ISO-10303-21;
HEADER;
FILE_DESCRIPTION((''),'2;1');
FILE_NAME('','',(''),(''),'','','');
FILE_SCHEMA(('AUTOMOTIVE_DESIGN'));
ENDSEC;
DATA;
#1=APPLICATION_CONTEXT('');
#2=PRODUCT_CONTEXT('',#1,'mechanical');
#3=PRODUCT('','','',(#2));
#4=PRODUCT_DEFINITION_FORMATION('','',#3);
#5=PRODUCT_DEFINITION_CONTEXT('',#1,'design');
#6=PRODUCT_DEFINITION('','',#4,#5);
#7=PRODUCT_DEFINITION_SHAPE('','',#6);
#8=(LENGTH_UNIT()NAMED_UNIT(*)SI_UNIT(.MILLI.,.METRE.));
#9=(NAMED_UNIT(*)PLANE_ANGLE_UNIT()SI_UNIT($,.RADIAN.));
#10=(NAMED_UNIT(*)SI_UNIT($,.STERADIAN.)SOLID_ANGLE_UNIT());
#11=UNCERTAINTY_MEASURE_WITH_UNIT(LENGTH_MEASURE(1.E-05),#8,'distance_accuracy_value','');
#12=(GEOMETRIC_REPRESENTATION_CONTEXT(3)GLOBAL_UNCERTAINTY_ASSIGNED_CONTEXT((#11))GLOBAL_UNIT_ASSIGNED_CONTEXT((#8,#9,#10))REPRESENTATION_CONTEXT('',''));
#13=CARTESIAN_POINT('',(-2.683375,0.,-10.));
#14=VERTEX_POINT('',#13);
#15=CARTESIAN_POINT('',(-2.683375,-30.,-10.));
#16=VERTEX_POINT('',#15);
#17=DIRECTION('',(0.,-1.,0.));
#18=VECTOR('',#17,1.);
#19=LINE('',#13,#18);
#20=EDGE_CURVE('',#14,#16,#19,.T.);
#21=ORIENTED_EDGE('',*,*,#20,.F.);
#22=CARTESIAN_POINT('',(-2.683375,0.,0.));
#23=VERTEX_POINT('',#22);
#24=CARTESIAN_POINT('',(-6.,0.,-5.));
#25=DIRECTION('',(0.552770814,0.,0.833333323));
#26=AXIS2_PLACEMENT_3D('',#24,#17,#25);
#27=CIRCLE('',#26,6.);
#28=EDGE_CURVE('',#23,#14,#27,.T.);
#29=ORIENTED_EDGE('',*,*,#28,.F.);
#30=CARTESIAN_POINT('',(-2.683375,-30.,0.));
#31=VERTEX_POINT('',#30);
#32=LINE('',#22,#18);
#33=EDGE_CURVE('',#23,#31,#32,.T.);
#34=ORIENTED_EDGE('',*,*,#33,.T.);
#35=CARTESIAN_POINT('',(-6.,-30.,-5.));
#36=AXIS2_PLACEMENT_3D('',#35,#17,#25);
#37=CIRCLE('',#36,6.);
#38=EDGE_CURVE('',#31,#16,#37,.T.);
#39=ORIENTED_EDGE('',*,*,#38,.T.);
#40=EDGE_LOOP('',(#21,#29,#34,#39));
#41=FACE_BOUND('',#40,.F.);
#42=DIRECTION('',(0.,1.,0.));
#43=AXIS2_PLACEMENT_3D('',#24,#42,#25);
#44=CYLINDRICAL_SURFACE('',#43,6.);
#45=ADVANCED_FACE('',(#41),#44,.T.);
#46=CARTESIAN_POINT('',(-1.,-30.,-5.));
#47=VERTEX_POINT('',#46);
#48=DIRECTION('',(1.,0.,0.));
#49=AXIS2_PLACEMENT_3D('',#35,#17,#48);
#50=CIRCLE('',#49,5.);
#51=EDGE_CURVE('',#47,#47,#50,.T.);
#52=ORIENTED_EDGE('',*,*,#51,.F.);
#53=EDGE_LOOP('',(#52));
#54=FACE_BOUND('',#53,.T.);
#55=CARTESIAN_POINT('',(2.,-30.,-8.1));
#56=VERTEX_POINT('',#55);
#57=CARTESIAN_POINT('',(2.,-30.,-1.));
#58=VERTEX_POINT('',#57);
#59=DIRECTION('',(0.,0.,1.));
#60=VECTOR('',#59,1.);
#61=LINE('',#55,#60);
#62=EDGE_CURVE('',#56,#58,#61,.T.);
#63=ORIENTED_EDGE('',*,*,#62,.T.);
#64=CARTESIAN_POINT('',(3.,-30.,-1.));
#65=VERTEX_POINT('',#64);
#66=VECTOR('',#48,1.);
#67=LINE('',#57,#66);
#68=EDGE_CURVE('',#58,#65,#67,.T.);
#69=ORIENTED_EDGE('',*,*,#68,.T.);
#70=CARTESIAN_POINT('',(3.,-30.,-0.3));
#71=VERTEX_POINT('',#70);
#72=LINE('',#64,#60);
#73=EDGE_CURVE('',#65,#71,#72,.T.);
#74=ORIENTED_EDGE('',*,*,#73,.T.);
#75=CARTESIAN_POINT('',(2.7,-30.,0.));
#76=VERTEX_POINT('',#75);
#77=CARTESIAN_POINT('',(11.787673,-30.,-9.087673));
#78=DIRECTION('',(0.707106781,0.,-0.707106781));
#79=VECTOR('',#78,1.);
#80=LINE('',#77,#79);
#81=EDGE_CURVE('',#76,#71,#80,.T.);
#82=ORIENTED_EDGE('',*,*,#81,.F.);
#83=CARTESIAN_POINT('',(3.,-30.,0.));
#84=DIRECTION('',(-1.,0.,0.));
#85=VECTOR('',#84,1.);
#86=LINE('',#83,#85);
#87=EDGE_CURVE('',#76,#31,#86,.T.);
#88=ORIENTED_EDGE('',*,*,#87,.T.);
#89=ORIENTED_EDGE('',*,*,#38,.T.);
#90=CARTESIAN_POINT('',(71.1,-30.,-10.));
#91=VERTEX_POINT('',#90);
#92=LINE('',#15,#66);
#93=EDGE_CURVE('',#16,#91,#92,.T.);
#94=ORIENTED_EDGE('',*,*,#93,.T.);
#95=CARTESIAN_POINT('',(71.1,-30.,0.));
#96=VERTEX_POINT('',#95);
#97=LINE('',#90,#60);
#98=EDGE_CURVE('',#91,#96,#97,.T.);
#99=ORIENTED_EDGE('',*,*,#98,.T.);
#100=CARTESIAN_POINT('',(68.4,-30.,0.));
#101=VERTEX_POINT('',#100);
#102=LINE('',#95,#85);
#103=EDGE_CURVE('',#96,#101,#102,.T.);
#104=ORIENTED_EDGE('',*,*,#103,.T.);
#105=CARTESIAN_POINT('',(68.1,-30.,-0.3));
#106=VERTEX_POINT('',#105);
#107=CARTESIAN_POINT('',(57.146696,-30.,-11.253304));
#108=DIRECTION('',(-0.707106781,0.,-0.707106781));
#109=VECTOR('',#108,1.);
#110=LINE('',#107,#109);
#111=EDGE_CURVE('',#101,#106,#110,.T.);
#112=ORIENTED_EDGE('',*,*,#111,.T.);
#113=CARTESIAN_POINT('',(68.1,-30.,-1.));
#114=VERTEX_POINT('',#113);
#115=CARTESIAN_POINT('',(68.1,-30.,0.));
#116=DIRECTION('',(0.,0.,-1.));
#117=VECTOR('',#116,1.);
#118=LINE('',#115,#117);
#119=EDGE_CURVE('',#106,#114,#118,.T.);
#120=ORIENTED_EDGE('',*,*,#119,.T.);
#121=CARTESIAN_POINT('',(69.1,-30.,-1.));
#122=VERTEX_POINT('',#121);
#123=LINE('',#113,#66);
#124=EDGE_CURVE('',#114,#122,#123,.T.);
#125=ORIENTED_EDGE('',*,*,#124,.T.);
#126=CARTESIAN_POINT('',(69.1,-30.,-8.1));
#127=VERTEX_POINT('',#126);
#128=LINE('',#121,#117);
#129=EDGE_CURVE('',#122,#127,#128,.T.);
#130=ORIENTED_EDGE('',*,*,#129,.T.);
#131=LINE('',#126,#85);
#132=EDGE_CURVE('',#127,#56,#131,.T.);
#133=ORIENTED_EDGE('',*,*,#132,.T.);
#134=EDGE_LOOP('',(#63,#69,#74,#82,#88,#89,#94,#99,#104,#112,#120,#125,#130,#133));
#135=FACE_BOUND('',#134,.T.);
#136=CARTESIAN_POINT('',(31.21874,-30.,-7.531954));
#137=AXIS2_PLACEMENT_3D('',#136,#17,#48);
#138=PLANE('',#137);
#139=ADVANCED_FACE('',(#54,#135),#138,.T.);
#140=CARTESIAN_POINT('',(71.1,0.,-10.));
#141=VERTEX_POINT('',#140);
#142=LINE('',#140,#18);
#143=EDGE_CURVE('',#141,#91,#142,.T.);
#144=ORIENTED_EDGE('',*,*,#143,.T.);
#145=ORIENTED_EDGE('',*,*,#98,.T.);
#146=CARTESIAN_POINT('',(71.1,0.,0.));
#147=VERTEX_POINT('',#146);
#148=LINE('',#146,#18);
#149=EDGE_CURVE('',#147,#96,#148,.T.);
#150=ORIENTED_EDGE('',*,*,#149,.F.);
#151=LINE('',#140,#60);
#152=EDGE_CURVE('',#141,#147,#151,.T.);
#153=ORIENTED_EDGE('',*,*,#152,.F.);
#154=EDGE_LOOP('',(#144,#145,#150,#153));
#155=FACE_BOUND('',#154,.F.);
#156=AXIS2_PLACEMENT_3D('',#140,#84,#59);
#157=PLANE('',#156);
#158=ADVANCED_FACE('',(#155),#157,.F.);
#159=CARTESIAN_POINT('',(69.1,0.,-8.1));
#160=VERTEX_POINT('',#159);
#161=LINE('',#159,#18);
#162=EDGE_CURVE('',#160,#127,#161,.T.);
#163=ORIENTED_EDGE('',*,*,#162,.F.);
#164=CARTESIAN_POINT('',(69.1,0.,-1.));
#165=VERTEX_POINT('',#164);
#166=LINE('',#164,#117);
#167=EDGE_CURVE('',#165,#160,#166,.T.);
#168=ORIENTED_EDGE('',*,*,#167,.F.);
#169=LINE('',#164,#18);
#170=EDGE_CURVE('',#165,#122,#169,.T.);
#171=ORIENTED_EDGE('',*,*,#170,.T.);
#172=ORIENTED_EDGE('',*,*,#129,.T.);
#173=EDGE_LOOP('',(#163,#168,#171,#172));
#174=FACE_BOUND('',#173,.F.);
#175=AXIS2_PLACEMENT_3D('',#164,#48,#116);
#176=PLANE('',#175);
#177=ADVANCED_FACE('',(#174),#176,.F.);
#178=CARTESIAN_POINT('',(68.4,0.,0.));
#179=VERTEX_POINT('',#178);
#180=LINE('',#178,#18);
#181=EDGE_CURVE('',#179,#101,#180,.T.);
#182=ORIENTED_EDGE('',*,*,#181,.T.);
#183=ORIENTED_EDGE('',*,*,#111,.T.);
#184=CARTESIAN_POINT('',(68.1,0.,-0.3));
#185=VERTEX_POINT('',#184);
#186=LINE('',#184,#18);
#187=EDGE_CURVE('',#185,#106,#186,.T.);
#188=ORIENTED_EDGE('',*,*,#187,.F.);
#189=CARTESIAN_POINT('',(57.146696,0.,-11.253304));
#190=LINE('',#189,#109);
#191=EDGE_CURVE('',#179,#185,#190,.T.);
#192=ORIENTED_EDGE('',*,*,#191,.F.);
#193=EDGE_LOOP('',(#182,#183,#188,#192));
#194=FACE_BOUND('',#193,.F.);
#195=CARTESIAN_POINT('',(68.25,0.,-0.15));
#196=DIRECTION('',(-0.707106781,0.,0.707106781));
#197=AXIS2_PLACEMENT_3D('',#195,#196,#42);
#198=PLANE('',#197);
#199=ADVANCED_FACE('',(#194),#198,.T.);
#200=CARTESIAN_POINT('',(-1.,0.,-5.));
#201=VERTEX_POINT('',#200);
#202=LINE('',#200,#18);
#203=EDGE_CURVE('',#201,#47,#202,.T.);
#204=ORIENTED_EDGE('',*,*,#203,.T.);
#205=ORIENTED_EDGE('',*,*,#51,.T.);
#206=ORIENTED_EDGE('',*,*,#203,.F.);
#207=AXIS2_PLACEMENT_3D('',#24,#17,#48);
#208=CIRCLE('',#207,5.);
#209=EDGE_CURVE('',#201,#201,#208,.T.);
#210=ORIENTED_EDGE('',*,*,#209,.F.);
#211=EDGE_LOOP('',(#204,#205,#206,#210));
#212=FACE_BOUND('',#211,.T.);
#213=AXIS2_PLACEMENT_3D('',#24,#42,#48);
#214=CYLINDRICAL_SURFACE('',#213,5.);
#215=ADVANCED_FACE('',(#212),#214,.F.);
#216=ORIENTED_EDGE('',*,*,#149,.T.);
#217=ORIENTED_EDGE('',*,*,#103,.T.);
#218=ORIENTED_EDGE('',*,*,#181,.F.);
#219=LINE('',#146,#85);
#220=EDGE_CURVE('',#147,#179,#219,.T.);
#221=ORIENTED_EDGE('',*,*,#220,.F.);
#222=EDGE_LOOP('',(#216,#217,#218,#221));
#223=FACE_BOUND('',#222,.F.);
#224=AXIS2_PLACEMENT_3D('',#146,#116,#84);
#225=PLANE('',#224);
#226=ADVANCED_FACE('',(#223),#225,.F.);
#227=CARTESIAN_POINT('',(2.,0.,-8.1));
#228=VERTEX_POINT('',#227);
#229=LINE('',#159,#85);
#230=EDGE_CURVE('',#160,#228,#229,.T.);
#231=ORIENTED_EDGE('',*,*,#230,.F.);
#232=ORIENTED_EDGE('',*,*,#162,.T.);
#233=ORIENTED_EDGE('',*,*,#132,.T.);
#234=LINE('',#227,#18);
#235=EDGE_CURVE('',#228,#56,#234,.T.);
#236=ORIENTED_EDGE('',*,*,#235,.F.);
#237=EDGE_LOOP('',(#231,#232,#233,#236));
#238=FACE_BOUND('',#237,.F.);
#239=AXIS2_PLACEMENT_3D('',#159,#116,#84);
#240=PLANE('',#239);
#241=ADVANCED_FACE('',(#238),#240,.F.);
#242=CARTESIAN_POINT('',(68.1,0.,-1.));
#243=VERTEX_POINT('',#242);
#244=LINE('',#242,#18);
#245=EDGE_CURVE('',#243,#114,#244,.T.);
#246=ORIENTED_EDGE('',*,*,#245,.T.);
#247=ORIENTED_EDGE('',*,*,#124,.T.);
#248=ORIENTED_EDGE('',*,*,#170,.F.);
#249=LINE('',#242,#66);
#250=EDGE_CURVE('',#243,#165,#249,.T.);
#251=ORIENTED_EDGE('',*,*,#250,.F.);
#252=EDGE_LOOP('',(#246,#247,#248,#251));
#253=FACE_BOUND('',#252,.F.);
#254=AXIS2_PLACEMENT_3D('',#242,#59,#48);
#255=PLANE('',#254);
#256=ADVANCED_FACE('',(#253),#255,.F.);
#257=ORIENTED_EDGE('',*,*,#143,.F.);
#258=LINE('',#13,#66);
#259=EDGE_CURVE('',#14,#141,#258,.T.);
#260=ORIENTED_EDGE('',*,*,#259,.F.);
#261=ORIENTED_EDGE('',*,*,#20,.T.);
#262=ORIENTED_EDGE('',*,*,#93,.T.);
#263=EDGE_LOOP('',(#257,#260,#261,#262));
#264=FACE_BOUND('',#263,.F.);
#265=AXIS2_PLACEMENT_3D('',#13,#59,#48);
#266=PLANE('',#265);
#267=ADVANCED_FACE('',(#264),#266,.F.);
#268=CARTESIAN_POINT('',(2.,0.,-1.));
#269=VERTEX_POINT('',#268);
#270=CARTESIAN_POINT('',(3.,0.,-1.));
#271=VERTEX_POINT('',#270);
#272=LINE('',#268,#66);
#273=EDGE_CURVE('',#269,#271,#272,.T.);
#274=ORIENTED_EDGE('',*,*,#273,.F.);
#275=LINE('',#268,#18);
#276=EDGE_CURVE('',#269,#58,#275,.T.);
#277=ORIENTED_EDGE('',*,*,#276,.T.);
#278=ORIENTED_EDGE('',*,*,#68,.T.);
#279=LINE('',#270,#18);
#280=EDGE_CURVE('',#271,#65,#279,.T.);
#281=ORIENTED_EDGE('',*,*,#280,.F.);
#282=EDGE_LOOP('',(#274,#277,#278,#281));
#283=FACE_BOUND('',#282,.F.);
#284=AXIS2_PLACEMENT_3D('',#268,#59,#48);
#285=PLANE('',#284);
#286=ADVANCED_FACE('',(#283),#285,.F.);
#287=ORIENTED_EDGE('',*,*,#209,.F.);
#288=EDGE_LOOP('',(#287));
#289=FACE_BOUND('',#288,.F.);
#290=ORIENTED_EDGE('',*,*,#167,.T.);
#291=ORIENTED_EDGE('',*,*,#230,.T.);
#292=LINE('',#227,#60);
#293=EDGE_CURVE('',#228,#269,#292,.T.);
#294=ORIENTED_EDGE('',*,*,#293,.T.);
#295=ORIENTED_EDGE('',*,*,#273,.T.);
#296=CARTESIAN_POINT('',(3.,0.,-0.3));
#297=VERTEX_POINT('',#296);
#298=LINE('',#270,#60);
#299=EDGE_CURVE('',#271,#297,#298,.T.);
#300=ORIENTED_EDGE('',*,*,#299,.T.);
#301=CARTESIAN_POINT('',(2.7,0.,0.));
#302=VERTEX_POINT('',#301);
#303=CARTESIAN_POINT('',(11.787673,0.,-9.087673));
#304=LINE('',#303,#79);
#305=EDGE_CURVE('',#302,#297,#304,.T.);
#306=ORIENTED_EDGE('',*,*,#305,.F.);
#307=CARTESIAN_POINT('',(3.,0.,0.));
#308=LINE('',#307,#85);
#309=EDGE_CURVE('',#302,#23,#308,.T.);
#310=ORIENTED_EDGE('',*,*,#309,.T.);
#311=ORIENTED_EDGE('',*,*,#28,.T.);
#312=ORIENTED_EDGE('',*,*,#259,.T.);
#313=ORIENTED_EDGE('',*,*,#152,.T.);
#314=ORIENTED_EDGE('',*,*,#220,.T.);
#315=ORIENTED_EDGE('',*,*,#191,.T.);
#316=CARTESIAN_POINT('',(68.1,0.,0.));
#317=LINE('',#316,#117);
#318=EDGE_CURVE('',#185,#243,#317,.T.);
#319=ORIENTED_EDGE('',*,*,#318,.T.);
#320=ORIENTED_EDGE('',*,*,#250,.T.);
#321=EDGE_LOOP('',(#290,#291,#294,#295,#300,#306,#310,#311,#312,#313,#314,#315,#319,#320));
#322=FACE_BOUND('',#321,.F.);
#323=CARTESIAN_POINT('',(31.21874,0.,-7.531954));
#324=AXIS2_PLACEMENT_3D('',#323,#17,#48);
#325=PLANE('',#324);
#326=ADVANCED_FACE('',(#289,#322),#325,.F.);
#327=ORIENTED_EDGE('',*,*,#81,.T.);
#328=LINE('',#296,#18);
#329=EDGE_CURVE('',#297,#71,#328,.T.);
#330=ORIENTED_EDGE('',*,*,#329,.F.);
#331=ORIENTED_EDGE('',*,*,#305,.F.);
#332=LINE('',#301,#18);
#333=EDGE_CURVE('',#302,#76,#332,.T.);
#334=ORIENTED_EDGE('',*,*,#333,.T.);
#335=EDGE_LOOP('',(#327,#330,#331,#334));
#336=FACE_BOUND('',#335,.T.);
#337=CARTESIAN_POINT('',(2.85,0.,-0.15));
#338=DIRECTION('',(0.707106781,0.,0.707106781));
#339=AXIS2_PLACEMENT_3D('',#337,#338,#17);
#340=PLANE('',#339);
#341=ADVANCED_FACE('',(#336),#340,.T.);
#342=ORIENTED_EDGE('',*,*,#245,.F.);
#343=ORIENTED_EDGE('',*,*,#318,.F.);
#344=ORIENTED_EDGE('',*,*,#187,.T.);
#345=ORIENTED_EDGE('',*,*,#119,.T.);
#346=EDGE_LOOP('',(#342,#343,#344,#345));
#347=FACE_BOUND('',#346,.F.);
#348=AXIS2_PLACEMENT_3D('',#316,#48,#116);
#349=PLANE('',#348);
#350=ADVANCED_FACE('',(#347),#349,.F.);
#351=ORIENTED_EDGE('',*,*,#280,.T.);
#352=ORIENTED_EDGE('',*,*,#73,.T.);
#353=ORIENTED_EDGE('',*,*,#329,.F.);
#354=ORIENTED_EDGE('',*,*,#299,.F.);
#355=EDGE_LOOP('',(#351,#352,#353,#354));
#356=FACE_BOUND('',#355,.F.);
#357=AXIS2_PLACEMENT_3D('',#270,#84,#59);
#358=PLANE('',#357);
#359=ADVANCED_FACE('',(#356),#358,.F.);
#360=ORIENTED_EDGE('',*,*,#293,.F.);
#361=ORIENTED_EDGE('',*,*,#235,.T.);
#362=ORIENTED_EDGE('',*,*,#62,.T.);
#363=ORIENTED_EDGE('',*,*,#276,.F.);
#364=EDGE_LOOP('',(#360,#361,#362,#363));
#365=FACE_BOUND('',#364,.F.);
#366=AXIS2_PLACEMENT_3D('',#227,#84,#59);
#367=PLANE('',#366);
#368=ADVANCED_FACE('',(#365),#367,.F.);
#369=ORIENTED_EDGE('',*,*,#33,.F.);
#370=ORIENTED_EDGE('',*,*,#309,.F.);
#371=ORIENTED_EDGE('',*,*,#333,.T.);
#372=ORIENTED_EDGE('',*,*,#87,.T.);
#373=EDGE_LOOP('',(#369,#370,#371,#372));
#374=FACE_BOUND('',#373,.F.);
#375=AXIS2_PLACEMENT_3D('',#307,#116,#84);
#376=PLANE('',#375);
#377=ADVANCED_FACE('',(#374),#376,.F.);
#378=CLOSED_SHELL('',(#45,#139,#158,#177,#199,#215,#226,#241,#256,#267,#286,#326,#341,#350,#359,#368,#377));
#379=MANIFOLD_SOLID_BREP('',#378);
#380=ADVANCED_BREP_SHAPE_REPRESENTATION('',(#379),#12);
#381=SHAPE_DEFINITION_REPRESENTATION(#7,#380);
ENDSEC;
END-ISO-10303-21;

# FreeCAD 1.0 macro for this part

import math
import FreeCAD as App
import Part
import Sketcher

V = App.Vector


def edges_at(feature, points):
    """Names of the edges that pass closest to the given points."""
    edges = feature.Shape.Edges
    near = lambda p: min(range(len(edges)), key=lambda i: edges[i].distToShape(Part.Vertex(*p))[0])
    return sorted({f"Edge{near(p) + 1}" for p in points})

doc = App.newDocument("Part")
params = doc.addObject("Spreadsheet::Sheet", "Params")
for row, (alias, value) in enumerate([
    ("sketch1_diameter", "10 mm"),
    ("sketch1_radius", "6 mm"),
    ("sketch1_width", "3 mm"),
    ("sketch1_width2", "1 mm"),
    ("sketch1_height", "10 mm"),
    ("pad1_length", "30 mm"),
    ("chamfer_size", "0.3 mm"),
], start=1):
    params.set(f"A{row}", alias)
    params.set(f"B{row}", "=" + value)
    params.setAlias(f"B{row}", alias)

body = doc.addObject("PartDesign::Body", "Body")

sketch1 = doc.addObject("Sketcher::SketchObject", "Sketch")
body.addObject(sketch1)
sketch1.AttachmentSupport = (doc.XZ_Plane, [""])
sketch1.MapMode = "FlatFace"
sketch1.addGeometry([
    Part.LineSegment(V(3, 0, 0), V(-2.7, 0, 0)),
    Part.ArcOfCircle(Part.Circle(V(-6, -5, 0), V(0, 0, 1), 6), math.radians(56), math.radians(304)),
    Part.LineSegment(V(-2.7, -10, 0), V(71.1, -10, 0)),
    Part.LineSegment(V(71.1, -10, 0), V(71.1, 0, 0)),
    Part.LineSegment(V(71.1, 0, 0), V(68.1, 0, 0)),
    Part.LineSegment(V(68.1, 0, 0), V(68.1, -1, 0)),
    Part.LineSegment(V(68.1, -1, 0), V(69.1, -1, 0)),
    Part.LineSegment(V(69.1, -1, 0), V(69.1, -8.1, 0)),
    Part.LineSegment(V(69.1, -8.1, 0), V(2, -8.1, 0)),
    Part.LineSegment(V(2, -8.1, 0), V(2, -1, 0)),
    Part.LineSegment(V(2, -1, 0), V(3, -1, 0)),
    Part.LineSegment(V(3, -1, 0), V(3, 0, 0)),
    Part.Circle(V(-6, -5, 0), V(0, 0, 1), 5),
], False)
sketch1.addConstraint([
    Sketcher.Constraint("Coincident", 0, 2, 1, 1),
    Sketcher.Constraint("Coincident", 1, 2, 2, 1),
    Sketcher.Constraint("Coincident", 2, 2, 3, 1),
    Sketcher.Constraint("Coincident", 3, 2, 4, 1),
    Sketcher.Constraint("Coincident", 4, 2, 5, 1),
    Sketcher.Constraint("Coincident", 5, 2, 6, 1),
    Sketcher.Constraint("Coincident", 6, 2, 7, 1),
    Sketcher.Constraint("Coincident", 7, 2, 8, 1),
    Sketcher.Constraint("Coincident", 8, 2, 9, 1),
    Sketcher.Constraint("Coincident", 9, 2, 10, 1),
    Sketcher.Constraint("Coincident", 10, 2, 11, 1),
    Sketcher.Constraint("Coincident", 11, 2, 0, 1),
    Sketcher.Constraint("Horizontal", 0),
    Sketcher.Constraint("Horizontal", 2),
    Sketcher.Constraint("Vertical", 3),
    Sketcher.Constraint("Horizontal", 4),
    Sketcher.Constraint("Vertical", 5),
    Sketcher.Constraint("Horizontal", 6),
    Sketcher.Constraint("Vertical", 7),
    Sketcher.Constraint("Horizontal", 8),
    Sketcher.Constraint("Vertical", 9),
    Sketcher.Constraint("Horizontal", 10),
    Sketcher.Constraint("Vertical", 11),
    Sketcher.Constraint("Coincident", 12, 3, 1, 3),
    Sketcher.Constraint("PointOnObject", 0, 2, -1),
    Sketcher.Constraint("PointOnObject", 3, 2, -1),
    Sketcher.Constraint("Horizontal", 6, 2, 9, 2),
    Sketcher.Constraint("Vertical", 0, 2, 1, 2),
    Sketcher.Constraint("Equal", 6, 10),
    Sketcher.Constraint("Equal", 10, 5),
    Sketcher.Constraint("Diameter", 12, 10.0),
    Sketcher.Constraint("Radius", 1, 6.0),
    Sketcher.Constraint("DistanceX", 4, 2, 4, 1, 3.0),
    Sketcher.Constraint("DistanceX", 6, 1, 6, 2, 1.0),
    Sketcher.Constraint("DistanceY", 3, 1, 3, 2, 10.0),
    Sketcher.Constraint("DistanceX", 8, 2, 8, 1, 67.1),
    Sketcher.Constraint("DistanceY", 7, 2, 7, 1, 7.1),
    Sketcher.Constraint("DistanceX", 1, 3, -1, 1, 6.0),
    Sketcher.Constraint("DistanceX", -1, 1, 8, 2, 2.0),
])
sketch1.setExpression("Constraints[30]", "Params.sketch1_diameter")
sketch1.setExpression("Constraints[31]", "Params.sketch1_radius")
sketch1.setExpression("Constraints[32]", "Params.sketch1_width")
sketch1.setExpression("Constraints[33]", "Params.sketch1_width2")
sketch1.setExpression("Constraints[34]", "Params.sketch1_height")
pad1 = doc.addObject("PartDesign::Pad", "Pad")
body.addObject(pad1)
pad1.Profile = sketch1
pad1.setExpression("Length", "Params.pad1_length")
doc.recompute()

chamfer = doc.addObject("PartDesign::Chamfer", "Chamfer")
body.addObject(chamfer)
chamfer.Base = (pad1, edges_at(pad1, [(68.1, -15, 0), (3, -15, 0)]))
chamfer.setExpression("Size", "Params.chamfer_size")

doc.recompute()
